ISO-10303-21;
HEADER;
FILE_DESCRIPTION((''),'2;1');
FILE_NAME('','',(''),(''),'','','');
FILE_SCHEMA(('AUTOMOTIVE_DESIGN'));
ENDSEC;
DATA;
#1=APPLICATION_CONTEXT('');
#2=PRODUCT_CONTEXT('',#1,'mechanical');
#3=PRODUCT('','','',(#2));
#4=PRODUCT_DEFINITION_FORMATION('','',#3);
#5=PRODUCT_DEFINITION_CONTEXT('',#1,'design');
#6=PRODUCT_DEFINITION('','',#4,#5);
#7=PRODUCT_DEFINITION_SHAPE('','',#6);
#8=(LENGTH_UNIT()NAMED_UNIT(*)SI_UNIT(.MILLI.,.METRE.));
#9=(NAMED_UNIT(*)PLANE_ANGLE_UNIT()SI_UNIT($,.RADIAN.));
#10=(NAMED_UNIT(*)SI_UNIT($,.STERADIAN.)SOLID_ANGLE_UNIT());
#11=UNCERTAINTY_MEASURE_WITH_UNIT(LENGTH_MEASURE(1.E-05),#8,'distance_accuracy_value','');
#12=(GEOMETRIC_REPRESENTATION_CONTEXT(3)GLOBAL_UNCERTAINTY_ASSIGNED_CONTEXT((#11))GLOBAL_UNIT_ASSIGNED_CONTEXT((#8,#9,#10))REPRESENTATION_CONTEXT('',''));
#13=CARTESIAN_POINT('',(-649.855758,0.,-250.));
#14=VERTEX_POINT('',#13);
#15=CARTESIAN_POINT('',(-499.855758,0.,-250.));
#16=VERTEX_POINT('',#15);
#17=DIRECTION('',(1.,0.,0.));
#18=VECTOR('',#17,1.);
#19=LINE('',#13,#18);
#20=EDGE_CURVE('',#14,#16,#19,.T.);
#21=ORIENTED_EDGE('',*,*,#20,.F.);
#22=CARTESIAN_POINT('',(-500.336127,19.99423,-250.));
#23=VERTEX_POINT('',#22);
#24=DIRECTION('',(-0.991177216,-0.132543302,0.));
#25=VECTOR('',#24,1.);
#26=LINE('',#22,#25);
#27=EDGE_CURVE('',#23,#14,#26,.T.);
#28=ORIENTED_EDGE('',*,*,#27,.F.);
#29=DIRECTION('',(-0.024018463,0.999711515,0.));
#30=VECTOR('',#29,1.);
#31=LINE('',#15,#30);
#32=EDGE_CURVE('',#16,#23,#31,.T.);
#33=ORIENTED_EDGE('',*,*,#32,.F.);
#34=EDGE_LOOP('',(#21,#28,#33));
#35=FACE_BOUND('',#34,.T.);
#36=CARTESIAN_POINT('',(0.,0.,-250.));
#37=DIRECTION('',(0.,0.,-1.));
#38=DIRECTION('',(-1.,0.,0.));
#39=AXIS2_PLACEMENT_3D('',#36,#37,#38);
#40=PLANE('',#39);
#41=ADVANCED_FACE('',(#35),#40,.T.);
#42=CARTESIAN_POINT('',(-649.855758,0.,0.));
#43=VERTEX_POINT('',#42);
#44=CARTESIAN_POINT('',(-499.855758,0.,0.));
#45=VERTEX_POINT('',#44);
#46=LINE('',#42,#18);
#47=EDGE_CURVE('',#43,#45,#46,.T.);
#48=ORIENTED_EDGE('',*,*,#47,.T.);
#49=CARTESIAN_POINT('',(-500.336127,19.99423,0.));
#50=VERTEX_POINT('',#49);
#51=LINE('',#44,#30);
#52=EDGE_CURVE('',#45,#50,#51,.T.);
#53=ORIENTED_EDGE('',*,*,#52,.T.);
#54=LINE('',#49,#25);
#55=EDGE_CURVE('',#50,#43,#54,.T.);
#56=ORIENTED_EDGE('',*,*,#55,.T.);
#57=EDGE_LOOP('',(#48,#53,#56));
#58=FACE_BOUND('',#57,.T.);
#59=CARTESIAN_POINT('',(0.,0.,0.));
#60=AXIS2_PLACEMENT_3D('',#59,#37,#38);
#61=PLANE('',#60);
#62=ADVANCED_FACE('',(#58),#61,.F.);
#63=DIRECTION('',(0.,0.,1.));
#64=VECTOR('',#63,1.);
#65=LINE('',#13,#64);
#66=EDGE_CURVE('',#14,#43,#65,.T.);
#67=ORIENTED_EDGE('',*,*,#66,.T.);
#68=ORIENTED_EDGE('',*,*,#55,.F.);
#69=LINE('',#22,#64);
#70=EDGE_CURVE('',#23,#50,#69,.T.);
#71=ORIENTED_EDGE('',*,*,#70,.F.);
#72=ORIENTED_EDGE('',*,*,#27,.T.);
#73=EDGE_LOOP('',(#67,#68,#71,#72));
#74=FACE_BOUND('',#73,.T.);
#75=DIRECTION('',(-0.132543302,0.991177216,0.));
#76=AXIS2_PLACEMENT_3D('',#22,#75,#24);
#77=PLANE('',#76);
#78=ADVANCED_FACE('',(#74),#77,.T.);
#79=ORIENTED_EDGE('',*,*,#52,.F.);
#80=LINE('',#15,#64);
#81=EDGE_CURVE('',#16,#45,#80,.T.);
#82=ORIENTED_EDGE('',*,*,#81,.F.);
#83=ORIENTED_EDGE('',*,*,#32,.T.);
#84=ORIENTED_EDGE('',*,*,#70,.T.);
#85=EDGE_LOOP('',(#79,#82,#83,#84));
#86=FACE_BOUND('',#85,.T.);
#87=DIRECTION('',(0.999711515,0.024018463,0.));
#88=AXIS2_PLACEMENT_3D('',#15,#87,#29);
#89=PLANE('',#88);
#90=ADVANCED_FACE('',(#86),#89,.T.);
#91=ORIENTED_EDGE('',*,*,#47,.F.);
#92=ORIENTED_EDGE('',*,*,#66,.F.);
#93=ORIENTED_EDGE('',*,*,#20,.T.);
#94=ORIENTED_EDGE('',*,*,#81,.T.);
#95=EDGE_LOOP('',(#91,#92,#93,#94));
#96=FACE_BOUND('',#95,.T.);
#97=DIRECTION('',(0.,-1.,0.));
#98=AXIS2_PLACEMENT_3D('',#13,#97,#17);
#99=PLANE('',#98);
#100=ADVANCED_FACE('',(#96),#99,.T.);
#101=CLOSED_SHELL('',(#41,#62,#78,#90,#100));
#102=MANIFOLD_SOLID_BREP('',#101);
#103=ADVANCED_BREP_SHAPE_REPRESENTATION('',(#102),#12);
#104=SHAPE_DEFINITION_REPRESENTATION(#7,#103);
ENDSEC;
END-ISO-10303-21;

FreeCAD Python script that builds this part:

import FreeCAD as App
import Part
import Sketcher
from FreeCAD import Vector
Q = App.Units.Quantity

doc = App.newDocument("Part")
params = doc.addObject("Spreadsheet::Sheet", "Params")
for row, (alias, value) in enumerate([
    ("sketch1_width", "150 mm"),
    ("sketch1_length", "20 mm"),
    ("pad1_length", "250 mm"),
], start=1):
    params.set(f"A{row}", alias)
    params.set(f"B{row}", "=" + value)
    params.setAlias(f"B{row}", alias)

body = doc.addObject("PartDesign::Body", "Body")

# Sketch on XY plane
sketch1 = body.newObject("Sketcher::SketchObject", "Sketch")
sketch1.AttachmentSupport = (doc.getObject("XY_Plane"), [""])
sketch1.MapMode = "FlatFace"
sketch1.addGeometry([
    Part.LineSegment(Vector(-500.336127, 19.99423, 0), Vector(-649.855758, 0, 0)),
    Part.LineSegment(Vector(-649.855758, 0, 0), Vector(-499.855758, 0, 0)),
    Part.LineSegment(Vector(-499.855758, 0, 0), Vector(-500.336127, 19.99423, 0)),
], False)
sketch1.addConstraint([
    Sketcher.Constraint("Coincident", 0, 2, 1, 1),
    Sketcher.Constraint("Coincident", 1, 2, 2, 1),
    Sketcher.Constraint("Coincident", 2, 2, 0, 1),
    Sketcher.Constraint("Horizontal", 1),
    Sketcher.Constraint("PointOnObject", 0, 2, -1),
    Sketcher.Constraint("DistanceX", 1, 1, 1, 2, Q("150 mm")),
    Sketcher.Constraint("Distance", 2, Q("20 mm")),
    Sketcher.Constraint("DistanceY", -1, 1, 2, 2, Q("19.99423 mm")),
    Sketcher.Constraint("DistanceX", 0, 2, -1, 1, Q("649.855758 mm")),
])
sketch1.setExpression("Constraints[5]", "Params.sketch1_width")
sketch1.setExpression("Constraints[6]", "Params.sketch1_length")
pad1 = body.newObject("PartDesign::Pad", "Pad")
pad1.Profile = sketch1
pad1.setExpression("Length", "Params.pad1_length")
pad1.Reversed = True

doc.recompute()
